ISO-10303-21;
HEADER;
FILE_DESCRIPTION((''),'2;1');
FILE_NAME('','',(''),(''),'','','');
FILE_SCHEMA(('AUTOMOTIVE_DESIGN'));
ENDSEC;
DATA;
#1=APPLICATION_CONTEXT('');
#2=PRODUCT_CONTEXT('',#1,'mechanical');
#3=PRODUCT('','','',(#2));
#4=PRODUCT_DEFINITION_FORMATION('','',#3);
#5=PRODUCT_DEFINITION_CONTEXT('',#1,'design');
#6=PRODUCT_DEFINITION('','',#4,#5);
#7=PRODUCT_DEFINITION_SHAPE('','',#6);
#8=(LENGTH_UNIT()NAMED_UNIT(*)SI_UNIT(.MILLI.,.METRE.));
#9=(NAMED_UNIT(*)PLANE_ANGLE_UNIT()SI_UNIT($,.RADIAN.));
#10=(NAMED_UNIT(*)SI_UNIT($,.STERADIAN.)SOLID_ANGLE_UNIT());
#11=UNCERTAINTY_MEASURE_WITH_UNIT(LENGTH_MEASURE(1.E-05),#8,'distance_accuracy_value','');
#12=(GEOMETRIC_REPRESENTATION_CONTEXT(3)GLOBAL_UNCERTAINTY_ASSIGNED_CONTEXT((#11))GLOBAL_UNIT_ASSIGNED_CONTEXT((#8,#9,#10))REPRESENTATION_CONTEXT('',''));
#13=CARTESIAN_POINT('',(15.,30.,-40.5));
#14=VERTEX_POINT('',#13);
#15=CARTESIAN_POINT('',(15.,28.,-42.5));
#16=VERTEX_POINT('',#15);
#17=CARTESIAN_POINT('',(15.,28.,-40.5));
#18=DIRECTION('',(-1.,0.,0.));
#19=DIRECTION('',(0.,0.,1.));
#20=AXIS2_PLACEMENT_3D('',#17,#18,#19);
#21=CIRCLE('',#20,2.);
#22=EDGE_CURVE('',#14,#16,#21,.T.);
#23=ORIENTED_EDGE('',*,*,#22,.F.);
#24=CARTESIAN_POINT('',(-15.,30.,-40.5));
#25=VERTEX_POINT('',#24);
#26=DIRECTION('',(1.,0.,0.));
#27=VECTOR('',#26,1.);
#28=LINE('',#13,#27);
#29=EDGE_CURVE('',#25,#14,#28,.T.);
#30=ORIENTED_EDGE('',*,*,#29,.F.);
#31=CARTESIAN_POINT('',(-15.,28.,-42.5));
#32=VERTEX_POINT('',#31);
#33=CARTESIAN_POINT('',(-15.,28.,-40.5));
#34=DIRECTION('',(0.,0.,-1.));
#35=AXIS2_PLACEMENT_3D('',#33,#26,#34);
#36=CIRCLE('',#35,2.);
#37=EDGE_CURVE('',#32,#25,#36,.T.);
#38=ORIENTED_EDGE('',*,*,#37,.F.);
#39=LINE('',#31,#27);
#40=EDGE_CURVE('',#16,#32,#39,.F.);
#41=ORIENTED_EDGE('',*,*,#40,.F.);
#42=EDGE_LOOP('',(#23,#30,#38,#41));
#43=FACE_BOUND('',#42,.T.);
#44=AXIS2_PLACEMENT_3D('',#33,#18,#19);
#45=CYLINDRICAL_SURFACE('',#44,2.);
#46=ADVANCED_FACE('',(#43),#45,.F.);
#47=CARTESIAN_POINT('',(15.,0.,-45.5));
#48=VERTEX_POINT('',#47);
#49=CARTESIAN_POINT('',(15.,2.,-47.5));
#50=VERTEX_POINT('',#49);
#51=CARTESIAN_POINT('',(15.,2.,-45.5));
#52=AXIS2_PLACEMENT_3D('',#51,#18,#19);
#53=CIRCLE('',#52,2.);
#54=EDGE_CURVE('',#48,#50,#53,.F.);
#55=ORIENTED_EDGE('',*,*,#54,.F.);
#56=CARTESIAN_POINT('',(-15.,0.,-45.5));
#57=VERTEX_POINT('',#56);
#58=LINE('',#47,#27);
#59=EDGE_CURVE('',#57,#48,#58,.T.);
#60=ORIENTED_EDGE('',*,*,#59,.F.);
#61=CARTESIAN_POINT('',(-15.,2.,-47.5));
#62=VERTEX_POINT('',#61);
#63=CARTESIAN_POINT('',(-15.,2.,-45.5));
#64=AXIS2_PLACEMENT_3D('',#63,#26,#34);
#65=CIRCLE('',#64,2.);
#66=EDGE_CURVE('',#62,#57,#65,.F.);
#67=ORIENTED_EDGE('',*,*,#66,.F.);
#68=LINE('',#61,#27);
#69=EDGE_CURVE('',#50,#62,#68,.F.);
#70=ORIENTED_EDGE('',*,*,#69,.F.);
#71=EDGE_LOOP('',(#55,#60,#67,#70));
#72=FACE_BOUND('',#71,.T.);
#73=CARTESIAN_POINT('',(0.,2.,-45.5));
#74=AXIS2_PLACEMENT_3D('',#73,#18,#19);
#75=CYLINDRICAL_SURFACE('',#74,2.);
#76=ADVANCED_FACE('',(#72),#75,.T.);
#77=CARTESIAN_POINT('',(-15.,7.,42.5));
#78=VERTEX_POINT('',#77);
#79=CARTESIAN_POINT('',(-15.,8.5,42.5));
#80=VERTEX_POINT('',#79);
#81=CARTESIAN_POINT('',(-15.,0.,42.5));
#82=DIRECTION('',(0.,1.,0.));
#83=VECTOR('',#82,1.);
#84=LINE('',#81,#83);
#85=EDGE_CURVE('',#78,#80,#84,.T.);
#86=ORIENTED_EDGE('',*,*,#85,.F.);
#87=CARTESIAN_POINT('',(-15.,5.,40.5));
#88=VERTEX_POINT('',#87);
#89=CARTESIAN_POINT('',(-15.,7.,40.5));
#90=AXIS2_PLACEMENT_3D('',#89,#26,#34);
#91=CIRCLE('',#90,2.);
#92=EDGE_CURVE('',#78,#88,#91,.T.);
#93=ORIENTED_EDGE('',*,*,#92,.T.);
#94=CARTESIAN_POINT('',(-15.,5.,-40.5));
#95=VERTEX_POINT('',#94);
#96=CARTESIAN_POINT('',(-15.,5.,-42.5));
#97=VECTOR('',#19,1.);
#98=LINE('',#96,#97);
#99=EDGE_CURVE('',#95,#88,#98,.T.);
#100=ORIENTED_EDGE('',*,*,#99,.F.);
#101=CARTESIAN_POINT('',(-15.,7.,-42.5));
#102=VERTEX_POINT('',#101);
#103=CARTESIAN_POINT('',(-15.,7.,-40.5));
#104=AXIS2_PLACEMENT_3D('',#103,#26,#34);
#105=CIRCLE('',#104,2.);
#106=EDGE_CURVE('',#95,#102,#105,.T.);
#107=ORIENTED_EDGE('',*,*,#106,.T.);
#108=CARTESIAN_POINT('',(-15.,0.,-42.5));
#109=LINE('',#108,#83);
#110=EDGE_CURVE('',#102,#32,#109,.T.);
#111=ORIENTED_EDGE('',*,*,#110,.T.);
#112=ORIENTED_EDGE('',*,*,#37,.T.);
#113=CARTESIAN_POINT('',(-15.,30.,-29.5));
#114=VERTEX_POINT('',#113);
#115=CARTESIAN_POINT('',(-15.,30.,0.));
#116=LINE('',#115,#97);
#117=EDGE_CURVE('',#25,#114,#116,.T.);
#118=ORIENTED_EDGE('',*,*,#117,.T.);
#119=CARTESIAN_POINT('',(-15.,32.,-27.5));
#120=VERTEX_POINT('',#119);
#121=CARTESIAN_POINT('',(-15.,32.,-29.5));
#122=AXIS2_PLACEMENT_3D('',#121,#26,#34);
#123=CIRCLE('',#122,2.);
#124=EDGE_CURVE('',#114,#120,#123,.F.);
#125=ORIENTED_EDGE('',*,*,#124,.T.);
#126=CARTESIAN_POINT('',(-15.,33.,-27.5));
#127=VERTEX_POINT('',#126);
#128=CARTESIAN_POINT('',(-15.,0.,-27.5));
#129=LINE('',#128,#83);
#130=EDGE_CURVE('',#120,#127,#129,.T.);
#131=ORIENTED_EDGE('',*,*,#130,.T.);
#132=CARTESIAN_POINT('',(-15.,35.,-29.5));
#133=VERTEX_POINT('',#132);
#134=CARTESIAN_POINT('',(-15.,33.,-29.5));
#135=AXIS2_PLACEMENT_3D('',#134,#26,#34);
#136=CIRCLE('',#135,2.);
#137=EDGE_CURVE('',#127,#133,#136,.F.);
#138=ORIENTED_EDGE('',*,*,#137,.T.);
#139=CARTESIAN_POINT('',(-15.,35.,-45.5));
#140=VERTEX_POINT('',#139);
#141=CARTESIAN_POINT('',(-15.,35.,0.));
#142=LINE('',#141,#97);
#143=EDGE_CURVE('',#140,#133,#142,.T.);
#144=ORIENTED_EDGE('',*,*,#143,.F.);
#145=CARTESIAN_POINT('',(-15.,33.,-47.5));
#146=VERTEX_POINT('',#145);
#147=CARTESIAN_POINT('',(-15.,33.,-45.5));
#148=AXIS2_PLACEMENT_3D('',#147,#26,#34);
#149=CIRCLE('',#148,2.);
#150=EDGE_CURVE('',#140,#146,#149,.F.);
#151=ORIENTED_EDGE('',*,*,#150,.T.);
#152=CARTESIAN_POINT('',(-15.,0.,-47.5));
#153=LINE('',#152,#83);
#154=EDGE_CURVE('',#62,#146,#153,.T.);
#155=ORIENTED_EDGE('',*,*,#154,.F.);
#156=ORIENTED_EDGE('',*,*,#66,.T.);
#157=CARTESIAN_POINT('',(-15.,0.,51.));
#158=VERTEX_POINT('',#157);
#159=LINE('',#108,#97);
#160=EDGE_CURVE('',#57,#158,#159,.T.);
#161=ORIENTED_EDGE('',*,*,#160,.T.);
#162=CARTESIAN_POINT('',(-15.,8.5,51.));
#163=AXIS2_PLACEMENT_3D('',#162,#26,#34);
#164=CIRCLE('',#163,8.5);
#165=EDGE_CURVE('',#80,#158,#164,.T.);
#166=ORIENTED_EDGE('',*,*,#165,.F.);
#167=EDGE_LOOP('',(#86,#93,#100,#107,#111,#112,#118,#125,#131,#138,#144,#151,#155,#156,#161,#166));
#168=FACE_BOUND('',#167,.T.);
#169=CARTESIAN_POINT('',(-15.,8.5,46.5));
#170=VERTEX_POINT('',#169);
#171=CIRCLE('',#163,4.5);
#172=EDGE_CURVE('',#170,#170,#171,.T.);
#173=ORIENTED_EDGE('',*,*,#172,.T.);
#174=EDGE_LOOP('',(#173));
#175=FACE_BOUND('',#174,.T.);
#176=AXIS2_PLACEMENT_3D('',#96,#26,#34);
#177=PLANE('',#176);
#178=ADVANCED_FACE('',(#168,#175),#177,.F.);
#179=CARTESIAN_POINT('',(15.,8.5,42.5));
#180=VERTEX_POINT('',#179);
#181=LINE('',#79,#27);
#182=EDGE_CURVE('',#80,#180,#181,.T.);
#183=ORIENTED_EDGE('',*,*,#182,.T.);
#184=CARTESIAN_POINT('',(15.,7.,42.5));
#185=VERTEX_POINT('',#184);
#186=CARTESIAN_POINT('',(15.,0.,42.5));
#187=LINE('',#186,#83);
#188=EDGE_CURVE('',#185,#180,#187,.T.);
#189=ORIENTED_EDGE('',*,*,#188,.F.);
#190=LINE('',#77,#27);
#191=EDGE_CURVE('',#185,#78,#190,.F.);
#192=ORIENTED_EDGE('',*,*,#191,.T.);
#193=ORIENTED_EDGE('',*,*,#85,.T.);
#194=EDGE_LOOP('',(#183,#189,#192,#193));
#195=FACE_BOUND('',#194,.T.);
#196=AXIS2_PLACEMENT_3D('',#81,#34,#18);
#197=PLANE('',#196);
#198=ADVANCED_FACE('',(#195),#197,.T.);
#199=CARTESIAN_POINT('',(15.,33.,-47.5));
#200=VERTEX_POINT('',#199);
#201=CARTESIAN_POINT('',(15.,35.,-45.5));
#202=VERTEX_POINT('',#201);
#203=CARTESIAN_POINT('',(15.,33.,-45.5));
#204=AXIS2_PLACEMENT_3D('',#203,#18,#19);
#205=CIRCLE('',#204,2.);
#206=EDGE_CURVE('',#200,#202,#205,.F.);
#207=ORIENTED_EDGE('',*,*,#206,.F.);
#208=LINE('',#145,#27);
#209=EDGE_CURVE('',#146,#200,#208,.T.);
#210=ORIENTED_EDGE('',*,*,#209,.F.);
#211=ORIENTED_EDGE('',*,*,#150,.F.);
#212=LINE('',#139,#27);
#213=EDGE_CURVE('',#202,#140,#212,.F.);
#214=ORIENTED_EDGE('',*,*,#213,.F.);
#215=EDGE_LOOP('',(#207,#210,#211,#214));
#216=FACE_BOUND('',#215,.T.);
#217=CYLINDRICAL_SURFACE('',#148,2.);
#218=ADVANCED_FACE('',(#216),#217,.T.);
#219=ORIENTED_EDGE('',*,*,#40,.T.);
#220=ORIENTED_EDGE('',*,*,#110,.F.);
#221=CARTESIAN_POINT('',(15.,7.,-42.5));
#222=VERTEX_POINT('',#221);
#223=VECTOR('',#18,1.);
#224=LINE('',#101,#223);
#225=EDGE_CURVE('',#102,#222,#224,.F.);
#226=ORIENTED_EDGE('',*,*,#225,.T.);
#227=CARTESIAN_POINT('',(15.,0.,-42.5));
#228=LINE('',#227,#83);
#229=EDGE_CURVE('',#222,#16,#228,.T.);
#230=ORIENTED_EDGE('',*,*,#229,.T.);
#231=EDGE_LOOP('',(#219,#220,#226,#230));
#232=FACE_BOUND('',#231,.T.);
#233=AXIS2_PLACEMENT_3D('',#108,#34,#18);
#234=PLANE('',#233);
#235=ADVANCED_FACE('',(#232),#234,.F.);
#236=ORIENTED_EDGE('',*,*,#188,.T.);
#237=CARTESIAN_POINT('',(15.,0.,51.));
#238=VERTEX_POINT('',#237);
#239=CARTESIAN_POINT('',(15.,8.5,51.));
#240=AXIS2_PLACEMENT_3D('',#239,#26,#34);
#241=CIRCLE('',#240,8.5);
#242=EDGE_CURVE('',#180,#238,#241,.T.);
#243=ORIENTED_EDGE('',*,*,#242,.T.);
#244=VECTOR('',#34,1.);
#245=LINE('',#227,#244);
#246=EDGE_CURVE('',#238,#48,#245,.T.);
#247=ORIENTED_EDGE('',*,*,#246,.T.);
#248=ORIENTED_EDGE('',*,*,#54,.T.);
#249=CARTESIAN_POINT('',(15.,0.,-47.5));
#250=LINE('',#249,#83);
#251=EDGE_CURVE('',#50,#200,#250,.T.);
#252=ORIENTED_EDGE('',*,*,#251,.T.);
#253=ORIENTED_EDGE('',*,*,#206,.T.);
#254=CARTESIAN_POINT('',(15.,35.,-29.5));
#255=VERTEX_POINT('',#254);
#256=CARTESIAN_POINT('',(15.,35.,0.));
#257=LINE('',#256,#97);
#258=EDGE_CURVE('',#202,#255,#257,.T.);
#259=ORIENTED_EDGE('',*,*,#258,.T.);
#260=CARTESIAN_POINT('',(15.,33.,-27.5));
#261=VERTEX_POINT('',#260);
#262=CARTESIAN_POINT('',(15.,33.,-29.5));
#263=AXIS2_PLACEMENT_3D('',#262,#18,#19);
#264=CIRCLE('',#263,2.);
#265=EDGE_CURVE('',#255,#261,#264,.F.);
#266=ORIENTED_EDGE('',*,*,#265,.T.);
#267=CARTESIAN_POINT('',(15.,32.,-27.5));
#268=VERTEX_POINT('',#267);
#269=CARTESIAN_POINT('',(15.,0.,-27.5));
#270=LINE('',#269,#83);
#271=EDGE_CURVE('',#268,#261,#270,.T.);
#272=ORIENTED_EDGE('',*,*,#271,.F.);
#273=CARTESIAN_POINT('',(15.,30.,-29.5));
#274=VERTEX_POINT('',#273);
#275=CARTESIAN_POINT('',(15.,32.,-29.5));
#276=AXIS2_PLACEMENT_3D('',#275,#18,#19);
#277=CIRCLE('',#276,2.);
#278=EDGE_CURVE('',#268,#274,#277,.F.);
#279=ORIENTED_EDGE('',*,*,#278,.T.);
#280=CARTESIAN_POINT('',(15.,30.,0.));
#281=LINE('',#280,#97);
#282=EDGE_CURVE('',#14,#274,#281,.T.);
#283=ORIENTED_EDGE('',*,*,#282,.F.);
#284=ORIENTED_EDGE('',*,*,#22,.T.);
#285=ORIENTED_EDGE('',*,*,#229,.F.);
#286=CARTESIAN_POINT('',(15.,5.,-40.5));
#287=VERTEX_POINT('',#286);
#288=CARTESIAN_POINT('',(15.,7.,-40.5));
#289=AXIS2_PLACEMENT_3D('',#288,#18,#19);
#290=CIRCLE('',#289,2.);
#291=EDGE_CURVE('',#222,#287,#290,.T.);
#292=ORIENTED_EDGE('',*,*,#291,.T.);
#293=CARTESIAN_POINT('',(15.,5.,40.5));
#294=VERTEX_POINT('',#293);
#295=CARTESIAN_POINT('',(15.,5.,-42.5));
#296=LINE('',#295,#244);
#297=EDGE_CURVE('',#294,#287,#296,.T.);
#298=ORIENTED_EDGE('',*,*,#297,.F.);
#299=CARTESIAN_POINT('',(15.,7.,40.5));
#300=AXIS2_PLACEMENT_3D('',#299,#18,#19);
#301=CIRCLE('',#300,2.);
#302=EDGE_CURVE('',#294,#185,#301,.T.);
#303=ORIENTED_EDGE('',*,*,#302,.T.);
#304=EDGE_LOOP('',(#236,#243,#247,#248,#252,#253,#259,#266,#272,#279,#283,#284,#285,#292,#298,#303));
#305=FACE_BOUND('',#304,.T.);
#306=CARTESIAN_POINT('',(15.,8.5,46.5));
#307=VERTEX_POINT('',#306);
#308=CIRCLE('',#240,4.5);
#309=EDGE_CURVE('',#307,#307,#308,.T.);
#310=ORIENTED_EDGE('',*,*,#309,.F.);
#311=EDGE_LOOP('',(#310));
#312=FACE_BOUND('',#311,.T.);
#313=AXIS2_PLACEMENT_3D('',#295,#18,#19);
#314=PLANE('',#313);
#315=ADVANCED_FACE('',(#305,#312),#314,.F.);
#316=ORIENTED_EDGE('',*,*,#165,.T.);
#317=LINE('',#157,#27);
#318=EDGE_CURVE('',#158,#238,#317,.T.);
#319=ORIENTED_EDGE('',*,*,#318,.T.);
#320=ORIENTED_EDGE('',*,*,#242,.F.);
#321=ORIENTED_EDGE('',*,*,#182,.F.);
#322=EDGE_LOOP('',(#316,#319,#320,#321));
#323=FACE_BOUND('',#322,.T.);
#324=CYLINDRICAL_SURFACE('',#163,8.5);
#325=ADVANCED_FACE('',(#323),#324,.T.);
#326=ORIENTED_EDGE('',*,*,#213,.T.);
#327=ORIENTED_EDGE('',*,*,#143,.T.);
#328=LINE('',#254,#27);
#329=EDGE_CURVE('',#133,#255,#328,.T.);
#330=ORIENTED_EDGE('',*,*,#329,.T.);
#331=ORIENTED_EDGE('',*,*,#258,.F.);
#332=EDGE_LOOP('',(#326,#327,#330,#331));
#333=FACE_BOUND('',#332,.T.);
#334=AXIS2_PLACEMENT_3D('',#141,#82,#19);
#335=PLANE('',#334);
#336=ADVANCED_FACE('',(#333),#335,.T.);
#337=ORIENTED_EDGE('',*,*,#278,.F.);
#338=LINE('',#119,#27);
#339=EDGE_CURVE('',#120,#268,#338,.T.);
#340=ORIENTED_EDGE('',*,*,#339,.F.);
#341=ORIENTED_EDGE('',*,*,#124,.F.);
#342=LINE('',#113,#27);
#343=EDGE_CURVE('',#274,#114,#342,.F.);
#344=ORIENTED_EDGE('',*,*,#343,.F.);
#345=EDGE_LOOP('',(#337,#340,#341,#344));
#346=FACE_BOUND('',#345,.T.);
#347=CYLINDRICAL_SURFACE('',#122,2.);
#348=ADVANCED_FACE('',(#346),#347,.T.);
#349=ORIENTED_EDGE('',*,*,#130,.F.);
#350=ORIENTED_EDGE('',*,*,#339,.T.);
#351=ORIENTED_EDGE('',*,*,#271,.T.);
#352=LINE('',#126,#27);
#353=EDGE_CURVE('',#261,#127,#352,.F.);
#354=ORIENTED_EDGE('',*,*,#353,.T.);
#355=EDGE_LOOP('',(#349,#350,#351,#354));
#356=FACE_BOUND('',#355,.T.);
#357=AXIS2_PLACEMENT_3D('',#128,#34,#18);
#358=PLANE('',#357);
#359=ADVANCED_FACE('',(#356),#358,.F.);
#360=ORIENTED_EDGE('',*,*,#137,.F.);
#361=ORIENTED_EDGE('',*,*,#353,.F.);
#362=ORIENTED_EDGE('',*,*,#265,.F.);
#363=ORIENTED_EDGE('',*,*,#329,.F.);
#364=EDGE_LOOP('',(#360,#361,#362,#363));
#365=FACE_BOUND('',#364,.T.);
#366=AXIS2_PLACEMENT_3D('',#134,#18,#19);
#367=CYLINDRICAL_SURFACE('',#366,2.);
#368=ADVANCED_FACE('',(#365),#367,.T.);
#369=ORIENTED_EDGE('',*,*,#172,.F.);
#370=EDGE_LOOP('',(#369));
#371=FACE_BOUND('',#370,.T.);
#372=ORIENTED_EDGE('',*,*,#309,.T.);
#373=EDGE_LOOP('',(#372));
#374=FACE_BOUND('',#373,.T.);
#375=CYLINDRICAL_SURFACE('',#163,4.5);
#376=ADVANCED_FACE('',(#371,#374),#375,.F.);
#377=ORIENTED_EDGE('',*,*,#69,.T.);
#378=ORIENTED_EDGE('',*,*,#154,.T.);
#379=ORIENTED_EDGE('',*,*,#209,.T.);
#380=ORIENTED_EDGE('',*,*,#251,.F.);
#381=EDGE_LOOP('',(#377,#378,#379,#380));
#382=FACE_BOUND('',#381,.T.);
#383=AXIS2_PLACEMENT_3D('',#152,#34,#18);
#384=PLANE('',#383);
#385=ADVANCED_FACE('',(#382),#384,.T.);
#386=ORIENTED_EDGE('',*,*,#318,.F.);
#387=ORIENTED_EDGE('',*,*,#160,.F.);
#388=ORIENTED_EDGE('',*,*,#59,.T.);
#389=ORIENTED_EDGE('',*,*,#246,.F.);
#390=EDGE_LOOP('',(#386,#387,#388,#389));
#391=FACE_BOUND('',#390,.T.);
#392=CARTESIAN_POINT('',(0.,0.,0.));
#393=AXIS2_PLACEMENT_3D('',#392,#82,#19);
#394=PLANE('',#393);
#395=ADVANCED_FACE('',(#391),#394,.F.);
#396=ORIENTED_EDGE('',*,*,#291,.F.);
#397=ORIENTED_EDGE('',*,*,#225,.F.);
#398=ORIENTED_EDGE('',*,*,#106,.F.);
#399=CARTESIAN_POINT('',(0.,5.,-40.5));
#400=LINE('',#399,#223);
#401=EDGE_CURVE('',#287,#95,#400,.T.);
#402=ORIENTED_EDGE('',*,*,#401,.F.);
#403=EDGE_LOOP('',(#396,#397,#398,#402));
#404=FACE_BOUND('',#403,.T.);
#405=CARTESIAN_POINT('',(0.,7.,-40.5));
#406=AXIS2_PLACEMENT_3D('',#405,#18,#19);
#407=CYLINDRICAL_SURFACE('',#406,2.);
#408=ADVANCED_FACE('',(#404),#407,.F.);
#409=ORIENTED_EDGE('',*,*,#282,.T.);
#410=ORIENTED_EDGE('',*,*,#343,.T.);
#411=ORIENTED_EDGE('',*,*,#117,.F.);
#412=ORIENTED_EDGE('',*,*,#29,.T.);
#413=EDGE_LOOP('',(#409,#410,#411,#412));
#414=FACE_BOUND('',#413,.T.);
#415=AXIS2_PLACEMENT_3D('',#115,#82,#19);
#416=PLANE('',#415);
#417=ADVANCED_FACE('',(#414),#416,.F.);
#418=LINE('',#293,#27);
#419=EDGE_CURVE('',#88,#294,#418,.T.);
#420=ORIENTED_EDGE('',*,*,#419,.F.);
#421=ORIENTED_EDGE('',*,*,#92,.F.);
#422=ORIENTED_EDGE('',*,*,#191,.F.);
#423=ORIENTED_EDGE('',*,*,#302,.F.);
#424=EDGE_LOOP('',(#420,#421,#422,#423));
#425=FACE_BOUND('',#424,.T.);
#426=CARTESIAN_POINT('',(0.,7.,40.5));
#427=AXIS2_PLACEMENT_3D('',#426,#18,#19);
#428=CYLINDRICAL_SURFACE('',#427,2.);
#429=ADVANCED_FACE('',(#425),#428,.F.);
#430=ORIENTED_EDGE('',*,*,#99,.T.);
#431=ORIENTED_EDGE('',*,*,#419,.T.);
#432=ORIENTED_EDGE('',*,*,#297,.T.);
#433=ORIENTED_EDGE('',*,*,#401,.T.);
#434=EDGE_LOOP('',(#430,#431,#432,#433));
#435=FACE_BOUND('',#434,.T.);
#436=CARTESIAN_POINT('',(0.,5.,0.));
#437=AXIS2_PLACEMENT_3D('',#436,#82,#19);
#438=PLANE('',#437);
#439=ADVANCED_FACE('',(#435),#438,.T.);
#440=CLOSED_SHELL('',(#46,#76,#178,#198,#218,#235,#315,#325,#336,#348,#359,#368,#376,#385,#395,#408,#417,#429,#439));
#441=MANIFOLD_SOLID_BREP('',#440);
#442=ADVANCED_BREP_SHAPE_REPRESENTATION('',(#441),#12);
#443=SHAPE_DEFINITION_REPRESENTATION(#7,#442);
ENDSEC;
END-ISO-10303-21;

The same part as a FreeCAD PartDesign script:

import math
import FreeCAD as App
import Part
import Sketcher
from FreeCAD import Vector
Q = App.Units.Quantity


def edges_at(feature, points):
    """Names of the edges that pass closest to the given points."""
    edges = feature.Shape.Edges
    near = lambda p: min(range(len(edges)), key=lambda i: edges[i].distToShape(Part.Vertex(*p))[0])
    return sorted({f"Edge{near(p) + 1}" for p in points})

doc = App.newDocument("Part")
body = doc.addObject("PartDesign::Body", "Body")

# Sketch on XZ plane
sketch1 = body.newObject("Sketcher::SketchObject", "Sketch")
sketch1.AttachmentSupport = (doc.getObject("XZ_Plane"), [""])
sketch1.MapMode = "FlatFace"
sketch1.addGeometry([
    Part.LineSegment(Vector(-15, -42, 0), Vector(-15, 42, 0)),
    Part.LineSegment(Vector(-15, 42, 0), Vector(15, 42, 0)),
    Part.LineSegment(Vector(15, 42, 0), Vector(15, -42, 0)),
    Part.LineSegment(Vector(15, -42, 0), Vector(-15, -42, 0)),
], False)
sketch1.addConstraint([
    Sketcher.Constraint("Coincident", 0, 2, 1, 1),
    Sketcher.Constraint("Coincident", 1, 2, 2, 1),
    Sketcher.Constraint("Coincident", 2, 2, 3, 1),
    Sketcher.Constraint("Coincident", 3, 2, 0, 1),
    Sketcher.Constraint("Vertical", 0),
    Sketcher.Constraint("Horizontal", 1),
    Sketcher.Constraint("Vertical", 2),
    Sketcher.Constraint("Horizontal", 3),
    Sketcher.Constraint("Symmetric", 0, 2, 2, 2, -1, 1),
    Sketcher.Constraint("DistanceX", 1, 1, 1, 2, Q("30 mm")),
    Sketcher.Constraint("DistanceY", 0, 1, 0, 2, Q("85 mm")),
])
pad1 = body.newObject("PartDesign::Pad", "Pad")
pad1.Profile = sketch1
pad1.Length = 5
pad1.Reversed = True

# Sketch on YZ plane
sketch2 = body.newObject("Sketcher::SketchObject", "Sketch001")
sketch2.AttachmentSupport = (doc.getObject("YZ_Plane"), [""])
sketch2.MapMode = "FlatFace"
sketch2.AttachmentOffset = App.Placement(Vector(0, 0, 15), App.Rotation())
sketch2.addGeometry([
    Part.ArcOfCircle(Part.Circle(Vector(8.5, 51, 0), Vector(0, 0, 1), 8.5), math.radians(-90), math.radians(180)),  # 0
    Part.LineSegment(Vector(0, 51, 0), Vector(0, 42.5, 0)),  # 1
    Part.LineSegment(Vector(0, 42.5, 0), Vector(8.5, 42.5, 0)),  # 2
    Part.Circle(Vector(8.5, 51, 0), Vector(0, 0, 1), 4.5),  # 3
    Part.LineSegment(Vector(0, -42.5, 0), Vector(0, -47.5, 0)),  # 4
    Part.LineSegment(Vector(0, -47.5, 0), Vector(35, -47.5, 0)),  # 5
    Part.LineSegment(Vector(35, -47.5, 0), Vector(35, -27.5, 0)),  # 6
    Part.LineSegment(Vector(35, -27.5, 0), Vector(30, -27.5, 0)),  # 7
    Part.LineSegment(Vector(30, -27.5, 0), Vector(30, -42.5, 0)),  # 8
    Part.LineSegment(Vector(30, -42.5, 0), Vector(0, -42.5, 0)),  # 9
], False)
sketch2.addConstraint([
    Sketcher.Constraint("Tangent", 0, 2, 1, 1),
    Sketcher.Constraint("Coincident", 1, 2, 2, 1),
    Sketcher.Constraint("Tangent", 2, 2, 0, 1),
    Sketcher.Constraint("Coincident", 4, 2, 5, 1),
    Sketcher.Constraint("Coincident", 5, 2, 6, 1),
    Sketcher.Constraint("Coincident", 6, 2, 7, 1),
    Sketcher.Constraint("Coincident", 7, 2, 8, 1),
    Sketcher.Constraint("Coincident", 8, 2, 9, 1),
    Sketcher.Constraint("Coincident", 9, 2, 4, 1),
    Sketcher.Constraint("Vertical", 1),
    Sketcher.Constraint("Horizontal", 2),
    Sketcher.Constraint("Vertical", 4),
    Sketcher.Constraint("Horizontal", 5),
    Sketcher.Constraint("Vertical", 6),
    Sketcher.Constraint("Horizontal", 7),
    Sketcher.Constraint("Vertical", 8),
    Sketcher.Constraint("Horizontal", 9),
    Sketcher.Constraint("Coincident", 3, 3, 0, 3),
    Sketcher.Constraint("Symmetric", 1, 2, 9, 2, -1, 1),
    Sketcher.Constraint("PointOnObject", 0, 2, -2),
    Sketcher.Constraint("Equal", 7, 4),
    Sketcher.Constraint("Diameter", 3, Q("9 mm")),
    Sketcher.Constraint("Radius", 0, Q("8.5 mm")),
    Sketcher.Constraint("DistanceX", 5, 1, 5, 2, Q("35 mm")),
    Sketcher.Constraint("DistanceX", 7, 2, 7, 1, Q("5 mm")),
    Sketcher.Constraint("DistanceY", 6, 1, 6, 2, Q("20 mm")),
    Sketcher.Constraint("DistanceY", -1, 1, 0, 3, Q("51 mm")),
])
pad2 = body.newObject("PartDesign::Pad", "Pad001")
pad2.Profile = sketch2
pad2.Length = 30
pad2.Reversed = True
doc.recompute()

fillet = body.newObject("PartDesign::Fillet", "Fillet")
fillet.Base = (pad2, edges_at(pad2, [
    (0, 5, -42.5),
    (0, 0, -47.5),
    (0, 30, -42.5),
    (0, 30, -27.5),
    (0, 35, -27.5),
    (0, 35, -47.5),
    (0, 5, 42.5),
]))
fillet.Radius = 2

doc.recompute()
